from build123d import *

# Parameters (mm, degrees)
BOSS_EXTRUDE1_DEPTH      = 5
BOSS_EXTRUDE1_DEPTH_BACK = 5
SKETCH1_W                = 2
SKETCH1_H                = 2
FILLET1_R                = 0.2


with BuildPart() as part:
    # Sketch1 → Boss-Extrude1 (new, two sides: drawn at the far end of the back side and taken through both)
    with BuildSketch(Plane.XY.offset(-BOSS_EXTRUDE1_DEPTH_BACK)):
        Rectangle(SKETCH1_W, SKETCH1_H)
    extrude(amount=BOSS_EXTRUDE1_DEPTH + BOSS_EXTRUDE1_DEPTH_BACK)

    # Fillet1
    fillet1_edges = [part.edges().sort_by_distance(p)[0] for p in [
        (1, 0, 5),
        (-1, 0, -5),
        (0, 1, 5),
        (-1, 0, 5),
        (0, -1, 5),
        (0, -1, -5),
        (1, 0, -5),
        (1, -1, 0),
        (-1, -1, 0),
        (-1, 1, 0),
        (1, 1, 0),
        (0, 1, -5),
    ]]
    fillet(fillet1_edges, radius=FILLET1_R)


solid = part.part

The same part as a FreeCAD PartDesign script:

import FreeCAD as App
import Part
import Sketcher

doc = App.newDocument("Part")
body = doc.addObject("PartDesign::Body", "Body")

# Sketch on XY plane
sketch1 = body.newObject("Sketcher::SketchObject", "Sketch")
sketch1.AttachmentSupport = (doc.getObject("XY_Plane"), [""])
sketch1.MapMode = "FlatFace"
sketch1.addGeometry([
    Part.LineSegment(App.Vector(-1, 1, 0), App.Vector(-1, -1, 0)),
    Part.LineSegment(App.Vector(-1, -1, 0), App.Vector(1, -1, 0)),
    Part.LineSegment(App.Vector(1, -1, 0), App.Vector(1, 1, 0)),
    Part.LineSegment(App.Vector(1, 1, 0), App.Vector(-1, 1, 0)),
], False)
sketch1.addConstraint([
    Sketcher.Constraint("Coincident", 0, 2, 1, 1),
    Sketcher.Constraint("Coincident", 1, 2, 2, 1),
    Sketcher.Constraint("Coincident", 2, 2, 3, 1),
    Sketcher.Constraint("Coincident", 3, 2, 0, 1),
    Sketcher.Constraint("Vertical", 0),
    Sketcher.Constraint("Horizontal", 1),
    Sketcher.Constraint("Vertical", 2),
    Sketcher.Constraint("Horizontal", 3),
    Sketcher.Constraint("Symmetric", 0, 2, 2, 2, -1, 1),
    Sketcher.Constraint("Equal", 3, 0),
    Sketcher.Constraint("DistanceX", 1, 1, 1, 2, 2.0),
])
pad1 = body.newObject("PartDesign::Pad", "Pad")
pad1.Profile = sketch1
pad1.Type = "TwoLengths"
pad1.Length = 5
pad1.Length2 = 5
doc.recompute()

fillet = body.newObject("PartDesign::Fillet", "Fillet")
fillet.Base = (pad1, ["Edge1"])
fillet.UseAllEdges = True
fillet.Radius = 0.2

doc.recompute()
